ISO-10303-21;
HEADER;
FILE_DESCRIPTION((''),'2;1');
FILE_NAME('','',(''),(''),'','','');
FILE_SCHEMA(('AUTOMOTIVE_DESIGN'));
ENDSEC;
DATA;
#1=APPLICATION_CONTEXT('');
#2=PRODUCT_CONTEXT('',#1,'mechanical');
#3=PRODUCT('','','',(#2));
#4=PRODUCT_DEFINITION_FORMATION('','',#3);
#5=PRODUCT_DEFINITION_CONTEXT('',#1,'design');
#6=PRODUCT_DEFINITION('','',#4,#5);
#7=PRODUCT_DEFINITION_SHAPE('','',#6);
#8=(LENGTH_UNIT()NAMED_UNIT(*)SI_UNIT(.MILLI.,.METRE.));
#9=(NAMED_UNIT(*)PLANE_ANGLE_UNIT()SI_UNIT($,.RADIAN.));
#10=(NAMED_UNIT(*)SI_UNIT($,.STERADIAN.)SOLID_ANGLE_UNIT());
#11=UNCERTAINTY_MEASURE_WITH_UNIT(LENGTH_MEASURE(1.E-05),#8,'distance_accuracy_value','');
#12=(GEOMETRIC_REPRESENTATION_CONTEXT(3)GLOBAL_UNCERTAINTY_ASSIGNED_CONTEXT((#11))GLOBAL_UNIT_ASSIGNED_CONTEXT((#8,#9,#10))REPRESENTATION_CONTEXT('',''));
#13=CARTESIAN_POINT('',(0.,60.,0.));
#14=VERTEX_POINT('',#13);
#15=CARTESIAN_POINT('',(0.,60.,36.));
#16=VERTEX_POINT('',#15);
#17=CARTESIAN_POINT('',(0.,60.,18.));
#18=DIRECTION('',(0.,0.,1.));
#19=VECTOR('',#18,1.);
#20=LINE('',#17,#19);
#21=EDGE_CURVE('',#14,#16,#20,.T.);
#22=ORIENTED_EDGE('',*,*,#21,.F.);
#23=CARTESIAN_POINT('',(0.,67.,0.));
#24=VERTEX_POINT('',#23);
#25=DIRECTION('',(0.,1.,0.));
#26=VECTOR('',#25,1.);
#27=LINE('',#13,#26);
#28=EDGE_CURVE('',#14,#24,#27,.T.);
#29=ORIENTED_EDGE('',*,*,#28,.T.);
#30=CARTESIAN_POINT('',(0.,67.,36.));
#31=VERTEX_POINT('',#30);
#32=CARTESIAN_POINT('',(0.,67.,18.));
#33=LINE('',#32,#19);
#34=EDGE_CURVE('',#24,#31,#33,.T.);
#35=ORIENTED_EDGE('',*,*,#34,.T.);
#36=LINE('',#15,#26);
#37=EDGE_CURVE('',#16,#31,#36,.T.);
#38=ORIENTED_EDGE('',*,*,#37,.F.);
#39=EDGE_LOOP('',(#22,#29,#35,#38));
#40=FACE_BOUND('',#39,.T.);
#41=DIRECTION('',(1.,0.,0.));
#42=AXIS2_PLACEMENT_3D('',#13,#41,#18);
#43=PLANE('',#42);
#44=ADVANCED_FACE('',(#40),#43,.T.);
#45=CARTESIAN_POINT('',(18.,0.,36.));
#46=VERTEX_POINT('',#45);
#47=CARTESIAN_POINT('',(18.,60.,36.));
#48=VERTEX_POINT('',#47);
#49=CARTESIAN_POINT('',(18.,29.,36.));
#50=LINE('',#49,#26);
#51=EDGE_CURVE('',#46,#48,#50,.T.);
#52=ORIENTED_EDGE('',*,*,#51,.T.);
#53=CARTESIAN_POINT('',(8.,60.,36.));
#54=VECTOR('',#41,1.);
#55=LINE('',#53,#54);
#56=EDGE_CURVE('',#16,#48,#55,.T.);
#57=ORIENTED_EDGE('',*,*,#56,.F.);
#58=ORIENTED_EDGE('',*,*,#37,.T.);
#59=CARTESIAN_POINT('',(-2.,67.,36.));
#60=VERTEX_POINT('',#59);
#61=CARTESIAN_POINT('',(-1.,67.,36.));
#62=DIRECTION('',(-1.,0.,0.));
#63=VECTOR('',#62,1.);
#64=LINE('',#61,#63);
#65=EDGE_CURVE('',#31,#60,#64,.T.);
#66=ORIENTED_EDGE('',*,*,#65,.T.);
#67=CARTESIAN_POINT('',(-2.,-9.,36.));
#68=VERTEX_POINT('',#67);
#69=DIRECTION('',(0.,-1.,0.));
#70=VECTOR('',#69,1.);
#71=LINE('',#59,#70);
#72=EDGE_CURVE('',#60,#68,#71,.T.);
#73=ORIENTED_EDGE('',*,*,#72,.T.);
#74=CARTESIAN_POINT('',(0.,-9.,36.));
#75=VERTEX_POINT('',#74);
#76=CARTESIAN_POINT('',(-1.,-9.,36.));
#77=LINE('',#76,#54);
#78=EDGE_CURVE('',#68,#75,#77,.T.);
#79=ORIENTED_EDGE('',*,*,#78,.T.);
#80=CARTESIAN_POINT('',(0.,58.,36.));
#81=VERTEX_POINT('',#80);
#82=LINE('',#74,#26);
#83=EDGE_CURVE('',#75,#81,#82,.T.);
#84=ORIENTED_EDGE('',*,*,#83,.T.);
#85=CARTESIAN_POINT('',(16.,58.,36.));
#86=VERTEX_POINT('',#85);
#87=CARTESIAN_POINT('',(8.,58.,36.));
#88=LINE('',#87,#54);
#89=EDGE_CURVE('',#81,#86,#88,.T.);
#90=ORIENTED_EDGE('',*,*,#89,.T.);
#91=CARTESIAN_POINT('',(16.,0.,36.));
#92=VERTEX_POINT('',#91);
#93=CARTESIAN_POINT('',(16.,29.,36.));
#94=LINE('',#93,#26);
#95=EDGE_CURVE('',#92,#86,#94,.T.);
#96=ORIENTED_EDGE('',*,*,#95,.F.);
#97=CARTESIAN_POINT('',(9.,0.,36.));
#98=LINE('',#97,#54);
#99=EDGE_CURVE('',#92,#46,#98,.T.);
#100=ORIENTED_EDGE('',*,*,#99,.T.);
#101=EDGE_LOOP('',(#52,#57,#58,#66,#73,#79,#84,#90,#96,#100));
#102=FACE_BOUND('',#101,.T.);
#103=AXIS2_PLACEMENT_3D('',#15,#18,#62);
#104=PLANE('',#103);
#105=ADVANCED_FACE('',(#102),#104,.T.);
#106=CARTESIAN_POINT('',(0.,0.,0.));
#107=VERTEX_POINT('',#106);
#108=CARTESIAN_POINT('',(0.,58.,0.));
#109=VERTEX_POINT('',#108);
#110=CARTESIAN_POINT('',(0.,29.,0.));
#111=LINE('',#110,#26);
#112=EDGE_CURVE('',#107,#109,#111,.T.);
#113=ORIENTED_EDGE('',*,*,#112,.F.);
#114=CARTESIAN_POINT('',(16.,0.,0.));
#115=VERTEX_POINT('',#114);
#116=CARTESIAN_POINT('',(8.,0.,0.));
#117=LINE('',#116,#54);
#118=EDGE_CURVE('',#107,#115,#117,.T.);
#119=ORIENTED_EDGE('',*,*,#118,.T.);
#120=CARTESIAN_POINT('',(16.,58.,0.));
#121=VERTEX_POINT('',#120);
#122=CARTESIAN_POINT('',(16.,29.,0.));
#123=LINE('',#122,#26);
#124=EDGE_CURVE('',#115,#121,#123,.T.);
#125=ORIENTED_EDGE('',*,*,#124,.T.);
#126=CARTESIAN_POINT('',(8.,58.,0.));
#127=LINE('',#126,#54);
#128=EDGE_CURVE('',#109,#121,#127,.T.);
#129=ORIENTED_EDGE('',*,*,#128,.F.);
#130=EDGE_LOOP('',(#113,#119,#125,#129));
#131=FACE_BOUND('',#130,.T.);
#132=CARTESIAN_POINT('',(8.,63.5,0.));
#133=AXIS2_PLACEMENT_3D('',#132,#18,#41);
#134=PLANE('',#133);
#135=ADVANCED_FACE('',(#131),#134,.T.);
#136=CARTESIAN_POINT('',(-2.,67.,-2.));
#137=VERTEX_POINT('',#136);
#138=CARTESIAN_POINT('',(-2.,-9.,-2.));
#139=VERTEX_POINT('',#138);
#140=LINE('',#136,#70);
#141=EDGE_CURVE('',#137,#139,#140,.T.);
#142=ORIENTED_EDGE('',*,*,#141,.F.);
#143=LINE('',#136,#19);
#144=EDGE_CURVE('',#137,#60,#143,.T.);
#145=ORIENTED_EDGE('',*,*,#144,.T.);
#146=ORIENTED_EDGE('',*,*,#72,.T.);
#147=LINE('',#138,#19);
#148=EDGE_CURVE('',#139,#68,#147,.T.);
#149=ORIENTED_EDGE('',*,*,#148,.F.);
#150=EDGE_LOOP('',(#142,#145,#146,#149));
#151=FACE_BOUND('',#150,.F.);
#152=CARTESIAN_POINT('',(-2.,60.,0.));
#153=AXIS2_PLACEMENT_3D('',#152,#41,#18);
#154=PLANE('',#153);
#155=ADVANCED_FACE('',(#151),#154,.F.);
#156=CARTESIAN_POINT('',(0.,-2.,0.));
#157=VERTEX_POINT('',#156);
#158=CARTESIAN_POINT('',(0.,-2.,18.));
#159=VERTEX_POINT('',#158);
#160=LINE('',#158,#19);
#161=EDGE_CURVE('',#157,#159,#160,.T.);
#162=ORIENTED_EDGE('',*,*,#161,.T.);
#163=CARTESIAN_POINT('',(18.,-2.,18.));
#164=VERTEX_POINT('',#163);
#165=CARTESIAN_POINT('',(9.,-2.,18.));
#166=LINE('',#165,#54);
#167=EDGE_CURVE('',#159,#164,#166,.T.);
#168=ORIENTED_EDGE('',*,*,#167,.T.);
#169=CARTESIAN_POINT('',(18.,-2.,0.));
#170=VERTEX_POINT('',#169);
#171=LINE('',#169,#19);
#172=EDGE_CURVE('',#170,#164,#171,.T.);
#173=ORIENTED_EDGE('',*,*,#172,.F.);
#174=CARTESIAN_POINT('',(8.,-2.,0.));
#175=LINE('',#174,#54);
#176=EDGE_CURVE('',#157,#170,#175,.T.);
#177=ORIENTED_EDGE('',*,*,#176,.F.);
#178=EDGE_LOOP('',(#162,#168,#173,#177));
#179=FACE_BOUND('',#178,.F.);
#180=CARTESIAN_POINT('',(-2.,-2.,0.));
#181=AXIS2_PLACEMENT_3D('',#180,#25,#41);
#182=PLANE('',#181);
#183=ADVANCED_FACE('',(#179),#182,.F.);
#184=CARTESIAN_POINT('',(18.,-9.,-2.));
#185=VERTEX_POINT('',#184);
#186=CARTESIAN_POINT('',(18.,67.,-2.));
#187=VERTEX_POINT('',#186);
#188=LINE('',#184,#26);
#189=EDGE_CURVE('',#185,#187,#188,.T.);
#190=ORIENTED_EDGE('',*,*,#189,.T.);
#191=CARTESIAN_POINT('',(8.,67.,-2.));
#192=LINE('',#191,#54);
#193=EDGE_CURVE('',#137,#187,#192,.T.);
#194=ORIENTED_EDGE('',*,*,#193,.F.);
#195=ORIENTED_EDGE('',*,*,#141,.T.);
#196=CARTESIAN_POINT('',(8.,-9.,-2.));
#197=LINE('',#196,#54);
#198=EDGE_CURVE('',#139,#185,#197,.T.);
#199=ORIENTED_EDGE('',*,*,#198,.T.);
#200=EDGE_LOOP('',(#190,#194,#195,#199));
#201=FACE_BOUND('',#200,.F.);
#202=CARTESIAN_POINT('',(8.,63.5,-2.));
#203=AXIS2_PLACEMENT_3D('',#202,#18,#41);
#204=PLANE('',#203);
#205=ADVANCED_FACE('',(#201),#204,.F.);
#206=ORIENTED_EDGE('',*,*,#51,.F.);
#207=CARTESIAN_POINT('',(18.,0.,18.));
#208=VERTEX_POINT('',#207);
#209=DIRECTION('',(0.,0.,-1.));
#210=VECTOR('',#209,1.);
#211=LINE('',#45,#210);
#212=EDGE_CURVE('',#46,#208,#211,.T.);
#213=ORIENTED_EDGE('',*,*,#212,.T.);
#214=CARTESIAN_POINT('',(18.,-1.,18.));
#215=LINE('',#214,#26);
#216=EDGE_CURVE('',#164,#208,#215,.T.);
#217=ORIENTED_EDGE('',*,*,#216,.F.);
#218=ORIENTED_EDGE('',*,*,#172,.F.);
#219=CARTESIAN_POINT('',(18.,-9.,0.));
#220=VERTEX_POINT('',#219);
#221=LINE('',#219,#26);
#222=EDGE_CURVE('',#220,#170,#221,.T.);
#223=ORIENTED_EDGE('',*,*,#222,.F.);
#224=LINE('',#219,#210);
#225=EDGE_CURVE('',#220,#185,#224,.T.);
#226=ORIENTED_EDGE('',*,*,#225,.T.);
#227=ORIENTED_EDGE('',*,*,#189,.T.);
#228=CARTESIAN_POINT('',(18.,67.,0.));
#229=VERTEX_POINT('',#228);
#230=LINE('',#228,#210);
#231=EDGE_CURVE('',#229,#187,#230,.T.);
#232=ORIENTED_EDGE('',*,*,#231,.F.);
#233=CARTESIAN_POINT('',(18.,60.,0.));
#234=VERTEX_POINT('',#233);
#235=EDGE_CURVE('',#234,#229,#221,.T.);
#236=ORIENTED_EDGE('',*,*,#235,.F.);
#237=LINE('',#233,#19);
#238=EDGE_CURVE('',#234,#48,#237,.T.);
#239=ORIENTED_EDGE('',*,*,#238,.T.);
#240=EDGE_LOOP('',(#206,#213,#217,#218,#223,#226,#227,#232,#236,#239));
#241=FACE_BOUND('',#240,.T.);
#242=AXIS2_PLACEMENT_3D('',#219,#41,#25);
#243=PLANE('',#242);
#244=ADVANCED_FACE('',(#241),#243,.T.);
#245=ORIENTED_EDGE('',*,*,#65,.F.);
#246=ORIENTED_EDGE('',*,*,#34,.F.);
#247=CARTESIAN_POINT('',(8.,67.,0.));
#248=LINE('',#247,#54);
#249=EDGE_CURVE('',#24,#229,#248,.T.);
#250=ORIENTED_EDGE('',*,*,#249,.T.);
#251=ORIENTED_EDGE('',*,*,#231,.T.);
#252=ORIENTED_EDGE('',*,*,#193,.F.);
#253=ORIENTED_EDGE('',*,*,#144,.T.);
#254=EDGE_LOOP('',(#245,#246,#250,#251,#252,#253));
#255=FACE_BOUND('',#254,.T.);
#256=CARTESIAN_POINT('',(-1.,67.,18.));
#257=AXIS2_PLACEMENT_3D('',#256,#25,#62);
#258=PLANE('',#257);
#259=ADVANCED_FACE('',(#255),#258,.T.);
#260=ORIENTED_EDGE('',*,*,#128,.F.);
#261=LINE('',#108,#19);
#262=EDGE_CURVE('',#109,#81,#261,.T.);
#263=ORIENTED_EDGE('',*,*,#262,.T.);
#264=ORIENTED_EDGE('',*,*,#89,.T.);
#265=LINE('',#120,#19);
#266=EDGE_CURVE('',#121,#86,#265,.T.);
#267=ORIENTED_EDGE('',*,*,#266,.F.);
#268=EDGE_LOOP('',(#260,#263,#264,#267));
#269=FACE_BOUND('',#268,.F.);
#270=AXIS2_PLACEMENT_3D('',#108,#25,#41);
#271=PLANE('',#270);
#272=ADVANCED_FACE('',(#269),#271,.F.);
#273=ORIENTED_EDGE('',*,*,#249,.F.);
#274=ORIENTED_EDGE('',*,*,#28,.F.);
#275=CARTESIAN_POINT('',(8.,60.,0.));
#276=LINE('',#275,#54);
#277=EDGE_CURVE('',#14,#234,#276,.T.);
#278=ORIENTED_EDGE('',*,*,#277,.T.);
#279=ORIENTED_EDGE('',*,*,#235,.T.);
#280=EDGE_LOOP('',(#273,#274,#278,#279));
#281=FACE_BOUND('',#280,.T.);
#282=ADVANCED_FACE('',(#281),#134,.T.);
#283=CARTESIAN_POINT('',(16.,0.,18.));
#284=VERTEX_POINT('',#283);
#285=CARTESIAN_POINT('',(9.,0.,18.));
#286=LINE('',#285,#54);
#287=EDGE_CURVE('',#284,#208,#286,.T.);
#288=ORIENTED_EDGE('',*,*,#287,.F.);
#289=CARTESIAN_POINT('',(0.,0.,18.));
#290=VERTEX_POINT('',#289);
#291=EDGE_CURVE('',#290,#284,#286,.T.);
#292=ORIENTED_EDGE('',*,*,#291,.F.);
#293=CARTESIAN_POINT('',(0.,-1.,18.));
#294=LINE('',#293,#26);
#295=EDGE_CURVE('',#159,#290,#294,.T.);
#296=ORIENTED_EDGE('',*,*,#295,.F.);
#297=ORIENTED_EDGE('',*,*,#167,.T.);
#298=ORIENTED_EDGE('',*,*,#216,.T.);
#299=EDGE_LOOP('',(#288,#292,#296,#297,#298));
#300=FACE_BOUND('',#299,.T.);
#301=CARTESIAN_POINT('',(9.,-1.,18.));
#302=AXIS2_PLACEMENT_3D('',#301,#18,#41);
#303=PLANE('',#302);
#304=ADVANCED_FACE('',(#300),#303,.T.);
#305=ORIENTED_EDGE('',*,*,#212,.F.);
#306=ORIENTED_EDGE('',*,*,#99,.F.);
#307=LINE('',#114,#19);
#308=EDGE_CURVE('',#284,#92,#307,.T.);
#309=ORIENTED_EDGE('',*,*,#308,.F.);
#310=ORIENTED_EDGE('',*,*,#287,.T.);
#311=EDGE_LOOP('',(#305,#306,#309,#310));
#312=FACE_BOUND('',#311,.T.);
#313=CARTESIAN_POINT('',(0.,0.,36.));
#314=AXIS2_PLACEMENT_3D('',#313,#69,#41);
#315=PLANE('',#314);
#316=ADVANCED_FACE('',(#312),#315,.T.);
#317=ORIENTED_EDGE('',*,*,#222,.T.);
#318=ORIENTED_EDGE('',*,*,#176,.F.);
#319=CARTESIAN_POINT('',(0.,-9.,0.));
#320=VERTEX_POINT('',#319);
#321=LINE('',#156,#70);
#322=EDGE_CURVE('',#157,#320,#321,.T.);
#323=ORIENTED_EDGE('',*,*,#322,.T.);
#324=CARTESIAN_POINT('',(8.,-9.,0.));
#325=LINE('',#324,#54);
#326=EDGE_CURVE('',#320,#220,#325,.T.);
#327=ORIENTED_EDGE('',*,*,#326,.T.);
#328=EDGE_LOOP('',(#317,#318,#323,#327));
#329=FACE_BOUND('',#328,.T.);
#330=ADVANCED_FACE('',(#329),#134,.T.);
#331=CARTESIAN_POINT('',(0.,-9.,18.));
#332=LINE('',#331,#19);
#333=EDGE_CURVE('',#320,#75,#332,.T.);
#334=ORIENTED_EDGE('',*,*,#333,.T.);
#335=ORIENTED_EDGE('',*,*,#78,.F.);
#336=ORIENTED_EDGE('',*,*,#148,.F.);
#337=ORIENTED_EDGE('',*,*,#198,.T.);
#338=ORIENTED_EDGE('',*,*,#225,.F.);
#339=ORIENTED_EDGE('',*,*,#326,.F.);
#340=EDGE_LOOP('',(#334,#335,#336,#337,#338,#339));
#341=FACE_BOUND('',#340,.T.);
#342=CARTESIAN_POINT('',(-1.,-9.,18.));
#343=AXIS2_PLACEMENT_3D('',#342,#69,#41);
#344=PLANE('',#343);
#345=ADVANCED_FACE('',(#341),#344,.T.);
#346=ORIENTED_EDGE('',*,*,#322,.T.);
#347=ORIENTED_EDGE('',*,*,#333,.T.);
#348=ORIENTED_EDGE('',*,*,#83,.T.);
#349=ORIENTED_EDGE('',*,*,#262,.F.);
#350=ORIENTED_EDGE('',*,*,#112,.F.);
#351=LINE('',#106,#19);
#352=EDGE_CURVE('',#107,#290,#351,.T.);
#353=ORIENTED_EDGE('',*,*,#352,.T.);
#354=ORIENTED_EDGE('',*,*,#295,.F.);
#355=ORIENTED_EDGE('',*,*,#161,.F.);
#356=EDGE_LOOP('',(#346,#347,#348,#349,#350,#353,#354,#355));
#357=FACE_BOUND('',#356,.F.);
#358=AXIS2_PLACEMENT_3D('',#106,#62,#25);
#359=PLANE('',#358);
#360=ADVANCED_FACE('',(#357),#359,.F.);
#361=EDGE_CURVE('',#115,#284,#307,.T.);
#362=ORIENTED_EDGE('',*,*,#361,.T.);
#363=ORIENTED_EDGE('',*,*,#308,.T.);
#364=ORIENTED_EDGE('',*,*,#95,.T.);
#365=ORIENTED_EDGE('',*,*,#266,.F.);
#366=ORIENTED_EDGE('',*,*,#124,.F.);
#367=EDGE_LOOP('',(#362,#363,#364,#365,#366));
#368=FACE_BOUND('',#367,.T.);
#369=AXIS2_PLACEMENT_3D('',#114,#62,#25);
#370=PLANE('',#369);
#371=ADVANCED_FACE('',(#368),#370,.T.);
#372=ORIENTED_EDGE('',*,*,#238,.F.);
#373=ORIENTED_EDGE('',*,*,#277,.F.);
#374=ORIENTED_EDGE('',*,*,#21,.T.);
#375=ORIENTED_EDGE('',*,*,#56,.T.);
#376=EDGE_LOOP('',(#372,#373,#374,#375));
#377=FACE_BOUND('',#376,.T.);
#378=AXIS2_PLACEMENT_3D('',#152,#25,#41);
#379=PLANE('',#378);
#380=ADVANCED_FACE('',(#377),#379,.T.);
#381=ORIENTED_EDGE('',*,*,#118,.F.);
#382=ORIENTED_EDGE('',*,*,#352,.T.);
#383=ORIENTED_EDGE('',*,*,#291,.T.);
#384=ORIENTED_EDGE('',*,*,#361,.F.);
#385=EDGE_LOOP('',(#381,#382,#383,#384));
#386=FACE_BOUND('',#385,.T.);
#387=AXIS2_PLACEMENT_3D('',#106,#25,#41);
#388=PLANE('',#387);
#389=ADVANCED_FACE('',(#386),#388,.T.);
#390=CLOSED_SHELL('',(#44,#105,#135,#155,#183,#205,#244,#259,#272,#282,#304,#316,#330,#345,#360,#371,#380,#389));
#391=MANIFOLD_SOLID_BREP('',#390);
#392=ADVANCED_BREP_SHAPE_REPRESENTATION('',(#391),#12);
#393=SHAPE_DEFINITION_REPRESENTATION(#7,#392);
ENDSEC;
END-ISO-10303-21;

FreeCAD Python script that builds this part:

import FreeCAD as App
import Part
import Sketcher
Q = App.Units.Quantity


def add_polygon(sketch, points):
    """Adds a closed chain of lines whose ends are joined by coincident constraints."""
    first, n = sketch.GeometryCount, len(points)
    for a, b in zip(points, points[1:] + points[:1]):
        sketch.addGeometry(Part.LineSegment(App.Vector(*a, 0), App.Vector(*b, 0)), False)
    for i in range(n):
        sketch.addConstraint(Sketcher.Constraint("Coincident", first + i, 2, first + (i + 1) % n, 1))

doc = App.newDocument("Part")
body = doc.addObject("PartDesign::Body", "Body")

# Sketch on XY plane
sketch1 = body.newObject("Sketcher::SketchObject", "Sketch")
sketch1.AttachmentSupport = (doc.getObject("XY_Plane"), [""])
sketch1.MapMode = "FlatFace"
add_polygon(sketch1, [(-2, 67), (-2, -9), (18, -9), (18, 67)])  # lines 0-3
sketch1.addConstraint(Sketcher.Constraint("Vertical", 0))
sketch1.addConstraint(Sketcher.Constraint("Horizontal", 1))
sketch1.addConstraint(Sketcher.Constraint("Vertical", 2))
sketch1.addConstraint(Sketcher.Constraint("Horizontal", 3))
sketch1.addConstraint(Sketcher.Constraint("DistanceX", 1, 1, 1, 2, Q("20 mm")))
sketch1.addConstraint(Sketcher.Constraint("DistanceY", 0, 2, 0, 1, Q("76 mm")))
sketch1.addConstraint(Sketcher.Constraint("DistanceX", 0, 2, -1, 1, Q("2 mm")))
sketch1.addConstraint(Sketcher.Constraint("DistanceY", 0, 2, -1, 1, Q("9 mm")))
pad1 = body.newObject("PartDesign::Pad", "Pad")
pad1.Profile = sketch1
pad1.Length = 2
pad1.Reversed = True

# Sketch on XY plane
sketch2 = body.newObject("Sketcher::SketchObject", "Sketch001")
sketch2.AttachmentSupport = (doc.getObject("XY_Plane"), [""])
sketch2.MapMode = "FlatFace"
add_polygon(sketch2, [(-2, 60), (-2, -2), (18, -2), (18, 60)])  # lines 0-3
add_polygon(sketch2, [(16, 0), (0, 0), (0, 58), (16, 58)])  # lines 4-7
sketch2.addConstraint(Sketcher.Constraint("Vertical", 0))
sketch2.addConstraint(Sketcher.Constraint("Horizontal", 1))
sketch2.addConstraint(Sketcher.Constraint("Vertical", 2))
sketch2.addConstraint(Sketcher.Constraint("Horizontal", 3))
sketch2.addConstraint(Sketcher.Constraint("Horizontal", 4))
sketch2.addConstraint(Sketcher.Constraint("Vertical", 5))
sketch2.addConstraint(Sketcher.Constraint("Horizontal", 6))
sketch2.addConstraint(Sketcher.Constraint("Vertical", 7))
sketch2.addConstraint(Sketcher.Constraint("Coincident", 4, 2, -1, 1))
sketch2.addConstraint(Sketcher.Constraint("DistanceX", 1, 1, 1, 2, Q("20 mm")))
sketch2.addConstraint(Sketcher.Constraint("DistanceX", 4, 2, 4, 1, Q("16 mm")))
sketch2.addConstraint(Sketcher.Constraint("DistanceY", 0, 2, 0, 1, Q("62 mm")))
sketch2.addConstraint(Sketcher.Constraint("DistanceY", 5, 1, 5, 2, Q("58 mm")))
sketch2.addConstraint(Sketcher.Constraint("DistanceX", 0, 2, -1, 1, Q("2 mm")))
sketch2.addConstraint(Sketcher.Constraint("DistanceY", 0, 2, -1, 1, Q("2 mm")))
pad2 = body.newObject("PartDesign::Pad", "Pad001")
pad2.Profile = sketch2
pad2.Length = 36

# Sketch on XZ plane
sketch3 = body.newObject("Sketcher::SketchObject", "Sketch002")
sketch3.AttachmentSupport = (doc.getObject("XZ_Plane"), [""])
sketch3.MapMode = "FlatFace"
sketch3.AttachmentOffset = App.Placement(App.Vector(0, 0, 2), App.Rotation())
add_polygon(sketch3, [(-2, 36), (-2, 0), (0, 0), (0, 36)])  # lines 0-3
sketch3.addConstraint(Sketcher.Constraint("Vertical", 0))
sketch3.addConstraint(Sketcher.Constraint("Horizontal", 1))
sketch3.addConstraint(Sketcher.Constraint("Vertical", 2))
sketch3.addConstraint(Sketcher.Constraint("Horizontal", 3))
sketch3.addConstraint(Sketcher.Constraint("Coincident", 1, 2, -1, 1))
sketch3.addConstraint(Sketcher.Constraint("DistanceX", 1, 1, 1, 2, Q("2 mm")))
sketch3.addConstraint(Sketcher.Constraint("DistanceY", 0, 2, 0, 1, Q("36 mm")))
pad3 = body.newObject("PartDesign::Pad", "Pad002")
pad3.Profile = sketch3
pad3.Length = 7

# Sketch on XZ plane
sketch4 = body.newObject("Sketcher::SketchObject", "Sketch003")
sketch4.AttachmentSupport = (doc.getObject("XZ_Plane"), [""])
sketch4.MapMode = "FlatFace"
sketch4.AttachmentOffset = App.Placement(App.Vector(0, 0, -60), App.Rotation())
add_polygon(sketch4, [(0, 36), (0, 0), (-2, 0), (-2, 36)])  # lines 0-3
sketch4.addConstraint(Sketcher.Constraint("Vertical", 0))
sketch4.addConstraint(Sketcher.Constraint("Horizontal", 1))
sketch4.addConstraint(Sketcher.Constraint("Vertical", 2))
sketch4.addConstraint(Sketcher.Constraint("Horizontal", 3))
sketch4.addConstraint(Sketcher.Constraint("Coincident", 0, 2, -1, 1))
sketch4.addConstraint(Sketcher.Constraint("DistanceX", 1, 2, 1, 1, Q("2 mm")))
sketch4.addConstraint(Sketcher.Constraint("DistanceY", 0, 2, 0, 1, Q("36 mm")))
pad4 = body.newObject("PartDesign::Pad", "Pad003")
pad4.Profile = sketch4
pad4.Length = 7
pad4.Reversed = True

# Sketch on XY plane
sketch5 = body.newObject("Sketcher::SketchObject", "Sketch004")
sketch5.AttachmentSupport = (doc.getObject("XY_Plane"), [""])
sketch5.MapMode = "FlatFace"
sketch5.AttachmentOffset = App.Placement(App.Vector(0, 0, 36), App.Rotation())
add_polygon(sketch5, [(0, 0), (0, -2), (18, -2), (18, 0)])  # lines 0-3
sketch5.addConstraint(Sketcher.Constraint("Vertical", 0))
sketch5.addConstraint(Sketcher.Constraint("Horizontal", 1))
sketch5.addConstraint(Sketcher.Constraint("Vertical", 2))
sketch5.addConstraint(Sketcher.Constraint("Horizontal", 3))
sketch5.addConstraint(Sketcher.Constraint("Coincident", 3, 2, -1, 1))
sketch5.addConstraint(Sketcher.Constraint("DistanceX", 1, 1, 1, 2, Q("18 mm")))
sketch5.addConstraint(Sketcher.Constraint("DistanceY", 0, 2, 0, 1, Q("2 mm")))
pocket1 = body.newObject("PartDesign::Pocket", "Pocket")
pocket1.Profile = sketch5
pocket1.Length = 18

doc.recompute()
